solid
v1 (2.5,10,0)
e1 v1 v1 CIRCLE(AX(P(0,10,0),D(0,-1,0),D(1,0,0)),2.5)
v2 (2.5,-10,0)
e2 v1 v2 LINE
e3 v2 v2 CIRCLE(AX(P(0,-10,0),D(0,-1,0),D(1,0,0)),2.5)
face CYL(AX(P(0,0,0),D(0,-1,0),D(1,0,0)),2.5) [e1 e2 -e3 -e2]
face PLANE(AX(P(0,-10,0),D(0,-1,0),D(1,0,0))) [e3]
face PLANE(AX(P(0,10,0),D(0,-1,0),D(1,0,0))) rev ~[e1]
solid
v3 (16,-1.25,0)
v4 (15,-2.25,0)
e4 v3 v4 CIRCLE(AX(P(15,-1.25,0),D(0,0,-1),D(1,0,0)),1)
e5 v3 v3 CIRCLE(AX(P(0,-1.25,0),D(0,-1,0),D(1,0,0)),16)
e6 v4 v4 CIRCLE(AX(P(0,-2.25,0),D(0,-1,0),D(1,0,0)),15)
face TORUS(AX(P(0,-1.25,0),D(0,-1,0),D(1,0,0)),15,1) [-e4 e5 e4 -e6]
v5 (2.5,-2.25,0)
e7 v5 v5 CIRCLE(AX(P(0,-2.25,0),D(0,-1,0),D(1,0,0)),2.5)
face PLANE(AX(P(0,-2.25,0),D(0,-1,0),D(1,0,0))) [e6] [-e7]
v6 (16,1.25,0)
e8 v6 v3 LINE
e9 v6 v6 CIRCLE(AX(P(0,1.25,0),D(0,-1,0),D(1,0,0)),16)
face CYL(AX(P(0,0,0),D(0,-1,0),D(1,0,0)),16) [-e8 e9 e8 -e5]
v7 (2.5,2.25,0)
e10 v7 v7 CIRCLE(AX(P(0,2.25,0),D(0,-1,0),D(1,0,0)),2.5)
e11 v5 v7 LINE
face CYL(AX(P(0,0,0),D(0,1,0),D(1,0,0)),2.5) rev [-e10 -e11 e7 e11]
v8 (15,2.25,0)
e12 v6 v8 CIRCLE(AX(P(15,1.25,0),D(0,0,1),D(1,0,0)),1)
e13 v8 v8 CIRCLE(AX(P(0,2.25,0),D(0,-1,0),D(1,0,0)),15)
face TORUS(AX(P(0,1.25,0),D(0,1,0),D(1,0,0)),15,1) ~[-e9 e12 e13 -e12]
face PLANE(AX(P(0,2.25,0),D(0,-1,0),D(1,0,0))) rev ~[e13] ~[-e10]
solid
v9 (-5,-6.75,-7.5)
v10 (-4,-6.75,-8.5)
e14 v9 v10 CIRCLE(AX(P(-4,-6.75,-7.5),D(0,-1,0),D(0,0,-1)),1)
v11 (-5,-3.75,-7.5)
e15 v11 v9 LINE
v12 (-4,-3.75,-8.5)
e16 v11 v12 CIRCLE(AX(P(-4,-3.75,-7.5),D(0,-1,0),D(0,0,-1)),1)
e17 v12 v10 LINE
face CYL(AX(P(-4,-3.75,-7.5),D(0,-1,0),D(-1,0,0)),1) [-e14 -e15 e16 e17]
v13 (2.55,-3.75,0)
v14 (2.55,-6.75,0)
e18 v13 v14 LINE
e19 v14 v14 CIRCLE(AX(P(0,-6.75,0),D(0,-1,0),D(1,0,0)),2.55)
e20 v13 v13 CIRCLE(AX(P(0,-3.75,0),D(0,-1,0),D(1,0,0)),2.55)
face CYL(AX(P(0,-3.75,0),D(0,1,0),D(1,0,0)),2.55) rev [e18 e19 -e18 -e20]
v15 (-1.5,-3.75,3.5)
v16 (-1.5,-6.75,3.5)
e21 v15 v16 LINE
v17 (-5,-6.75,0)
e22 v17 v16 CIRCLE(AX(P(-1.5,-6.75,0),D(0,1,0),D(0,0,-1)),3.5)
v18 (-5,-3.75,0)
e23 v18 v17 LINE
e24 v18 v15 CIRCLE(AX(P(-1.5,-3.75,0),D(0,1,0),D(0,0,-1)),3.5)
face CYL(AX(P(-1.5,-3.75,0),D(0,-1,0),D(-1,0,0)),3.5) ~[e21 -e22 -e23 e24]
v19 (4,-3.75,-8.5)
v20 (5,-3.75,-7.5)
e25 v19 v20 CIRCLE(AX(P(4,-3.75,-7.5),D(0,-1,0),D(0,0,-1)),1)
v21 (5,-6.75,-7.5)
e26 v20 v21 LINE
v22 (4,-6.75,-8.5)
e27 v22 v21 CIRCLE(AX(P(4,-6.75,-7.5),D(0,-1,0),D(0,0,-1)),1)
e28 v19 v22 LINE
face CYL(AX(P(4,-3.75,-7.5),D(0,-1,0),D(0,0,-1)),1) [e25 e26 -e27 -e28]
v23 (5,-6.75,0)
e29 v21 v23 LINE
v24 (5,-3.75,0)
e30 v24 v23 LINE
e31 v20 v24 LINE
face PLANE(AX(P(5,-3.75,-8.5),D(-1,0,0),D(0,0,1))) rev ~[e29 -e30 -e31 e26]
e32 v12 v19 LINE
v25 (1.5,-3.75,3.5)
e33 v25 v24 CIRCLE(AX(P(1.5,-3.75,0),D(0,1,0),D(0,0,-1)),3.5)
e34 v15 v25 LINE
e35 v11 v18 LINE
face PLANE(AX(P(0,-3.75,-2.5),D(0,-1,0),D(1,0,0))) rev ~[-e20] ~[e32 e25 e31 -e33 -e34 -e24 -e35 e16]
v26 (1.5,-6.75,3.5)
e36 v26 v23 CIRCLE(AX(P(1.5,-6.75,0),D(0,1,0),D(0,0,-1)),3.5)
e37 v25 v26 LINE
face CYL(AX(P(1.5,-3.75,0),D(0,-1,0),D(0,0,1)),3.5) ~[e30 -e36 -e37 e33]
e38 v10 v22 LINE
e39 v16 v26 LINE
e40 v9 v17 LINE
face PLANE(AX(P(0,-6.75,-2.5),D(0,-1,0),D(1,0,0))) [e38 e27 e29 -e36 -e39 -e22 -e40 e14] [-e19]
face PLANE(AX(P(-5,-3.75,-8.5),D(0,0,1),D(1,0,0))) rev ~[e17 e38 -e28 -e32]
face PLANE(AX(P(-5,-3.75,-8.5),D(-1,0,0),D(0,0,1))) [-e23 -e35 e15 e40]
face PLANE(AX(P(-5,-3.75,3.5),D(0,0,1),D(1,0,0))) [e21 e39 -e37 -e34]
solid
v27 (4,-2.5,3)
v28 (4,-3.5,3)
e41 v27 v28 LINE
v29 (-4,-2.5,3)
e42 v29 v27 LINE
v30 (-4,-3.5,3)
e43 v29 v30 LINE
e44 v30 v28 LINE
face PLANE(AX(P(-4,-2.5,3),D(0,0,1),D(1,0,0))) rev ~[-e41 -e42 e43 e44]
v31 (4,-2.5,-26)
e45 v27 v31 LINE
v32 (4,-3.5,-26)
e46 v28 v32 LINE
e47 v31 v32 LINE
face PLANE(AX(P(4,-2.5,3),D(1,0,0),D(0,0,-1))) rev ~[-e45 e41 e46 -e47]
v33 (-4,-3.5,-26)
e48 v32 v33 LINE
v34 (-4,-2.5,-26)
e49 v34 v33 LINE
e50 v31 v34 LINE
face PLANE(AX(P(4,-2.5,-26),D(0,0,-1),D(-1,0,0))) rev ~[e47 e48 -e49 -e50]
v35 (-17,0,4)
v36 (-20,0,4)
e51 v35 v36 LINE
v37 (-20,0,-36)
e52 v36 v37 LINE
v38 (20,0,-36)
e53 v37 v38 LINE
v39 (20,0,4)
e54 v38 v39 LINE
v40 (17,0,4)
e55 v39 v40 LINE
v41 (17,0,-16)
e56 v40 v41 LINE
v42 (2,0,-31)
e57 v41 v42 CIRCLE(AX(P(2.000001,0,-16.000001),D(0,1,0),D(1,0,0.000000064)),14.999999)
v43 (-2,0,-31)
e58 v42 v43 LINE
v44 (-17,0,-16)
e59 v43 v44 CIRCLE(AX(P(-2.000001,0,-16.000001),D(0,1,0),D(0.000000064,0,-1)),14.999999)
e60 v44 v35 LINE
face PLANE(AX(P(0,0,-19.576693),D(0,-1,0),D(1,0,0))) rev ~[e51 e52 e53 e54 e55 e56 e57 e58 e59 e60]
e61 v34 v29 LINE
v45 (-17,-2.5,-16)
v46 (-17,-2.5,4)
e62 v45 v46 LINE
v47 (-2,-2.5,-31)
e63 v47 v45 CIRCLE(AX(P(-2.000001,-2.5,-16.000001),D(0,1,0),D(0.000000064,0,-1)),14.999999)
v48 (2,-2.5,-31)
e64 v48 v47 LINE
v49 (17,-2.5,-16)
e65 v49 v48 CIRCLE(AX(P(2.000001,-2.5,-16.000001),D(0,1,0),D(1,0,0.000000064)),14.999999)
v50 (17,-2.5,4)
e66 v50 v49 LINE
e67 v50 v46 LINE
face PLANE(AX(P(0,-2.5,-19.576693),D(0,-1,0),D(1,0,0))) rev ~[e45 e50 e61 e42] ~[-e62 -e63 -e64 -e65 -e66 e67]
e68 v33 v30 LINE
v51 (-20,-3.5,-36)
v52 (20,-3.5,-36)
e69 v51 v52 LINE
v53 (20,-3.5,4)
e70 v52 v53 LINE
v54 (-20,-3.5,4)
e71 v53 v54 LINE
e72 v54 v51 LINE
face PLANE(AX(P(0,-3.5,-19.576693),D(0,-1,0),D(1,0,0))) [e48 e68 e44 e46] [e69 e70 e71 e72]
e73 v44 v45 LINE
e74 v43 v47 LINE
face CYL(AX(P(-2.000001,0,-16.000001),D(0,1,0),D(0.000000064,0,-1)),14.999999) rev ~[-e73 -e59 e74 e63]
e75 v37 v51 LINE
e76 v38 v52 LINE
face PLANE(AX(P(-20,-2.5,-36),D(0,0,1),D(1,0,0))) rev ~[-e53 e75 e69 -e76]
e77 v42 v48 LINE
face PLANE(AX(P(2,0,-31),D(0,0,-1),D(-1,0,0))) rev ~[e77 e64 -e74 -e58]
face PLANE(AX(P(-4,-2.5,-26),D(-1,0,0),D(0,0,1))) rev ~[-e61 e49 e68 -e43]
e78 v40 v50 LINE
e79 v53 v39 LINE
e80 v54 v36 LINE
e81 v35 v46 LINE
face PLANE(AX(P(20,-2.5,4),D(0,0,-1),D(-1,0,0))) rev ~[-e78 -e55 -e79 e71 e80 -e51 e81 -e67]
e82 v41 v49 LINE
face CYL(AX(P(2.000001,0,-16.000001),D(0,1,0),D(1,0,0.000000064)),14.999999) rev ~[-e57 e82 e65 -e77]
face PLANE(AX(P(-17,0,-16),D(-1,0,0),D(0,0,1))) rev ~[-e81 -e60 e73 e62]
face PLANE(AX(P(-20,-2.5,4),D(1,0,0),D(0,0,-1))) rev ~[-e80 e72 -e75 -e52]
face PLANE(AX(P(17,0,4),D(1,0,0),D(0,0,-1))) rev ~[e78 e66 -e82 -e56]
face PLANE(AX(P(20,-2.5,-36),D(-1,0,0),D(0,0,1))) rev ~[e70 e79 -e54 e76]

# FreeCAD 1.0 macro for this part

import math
import FreeCAD as App
import Part
import Sketcher

V = App.Vector
Q = App.Units.Quantity


def edges_at(feature, points):
    """Names of the edges that pass closest to the given points."""
    edges = feature.Shape.Edges
    near = lambda p: min(range(len(edges)), key=lambda i: edges[i].distToShape(Part.Vertex(*p))[0])
    return sorted({f"Edge{near(p) + 1}" for p in points})

doc = App.newDocument("Part")
body = doc.addObject("PartDesign::Body", "Body")

sketch1 = body.newObject("Sketcher::SketchObject", "Sketch")
sketch1.AttachmentSupport = (doc.getObject("XZ_Plane"), [""])
sketch1.MapMode = "FlatFace"
sketch1.addGeometry(Part.Circle(V(0, 0, 0), V(0, 0, 1), 16), False)
sketch1.addGeometry(Part.Circle(V(0, 0, 0), V(0, 0, 1), 2.5), False)
sketch1.addConstraint(Sketcher.Constraint("Coincident", 0, 3, -1, 1))
sketch1.addConstraint(Sketcher.Constraint("Coincident", 1, 3, -1, 1))
sketch1.addConstraint(Sketcher.Constraint("Diameter", 0, Q("32 mm")))
sketch1.addConstraint(Sketcher.Constraint("Diameter", 1, Q("5 mm")))
pad1 = body.newObject("PartDesign::Pad", "Pad")
pad1.Profile = sketch1
pad1.Length = 4.5
pad1.Midplane = True
doc.recompute()

fillet = body.newObject("PartDesign::Fillet", "Fillet")
fillet.Base = (pad1, edges_at(pad1, [(-16, -2.25, 0), (-16, 2.25, 0)]))
fillet.Radius = 1
body2 = doc.addObject("PartDesign::Body", "Body001")

sketch2 = body2.newObject("Sketcher::SketchObject", "Sketch001")
sketch2.AttachmentSupport = (doc.getObject("XZ_Plane001"), [""])
sketch2.MapMode = "FlatFace"
sketch2.addGeometry(Part.Circle(V(0, 0, 0), V(0, 0, 1), 2.5), False)
sketch2.addConstraint(Sketcher.Constraint("Coincident", 0, 3, -1, 1))
sketch2.addConstraint(Sketcher.Constraint("Diameter", 0, Q("5 mm")))
pad2 = body2.newObject("PartDesign::Pad", "Pad001")
pad2.Profile = sketch2
pad2.Length = 20
pad2.Midplane = True
body3 = doc.addObject("PartDesign::Body", "Body002")

sketch3 = body3.newObject("Sketcher::SketchObject", "Sketch002")
sketch3.AttachmentSupport = (doc.getObject("XZ_Plane002"), [""])
sketch3.MapMode = "FlatFace"
sketch3.AttachmentOffset = App.Placement(V(0, 0, 3.75), App.Rotation())
sketch3.addGeometry(Part.LineSegment(V(-5, 3.5, 0), V(-5, -8.5, 0)), False)
sketch3.addGeometry(Part.LineSegment(V(-5, -8.5, 0), V(5, -8.5, 0)), False)
sketch3.addGeometry(Part.LineSegment(V(5, -8.5, 0), V(5, 3.5, 0)), False)
sketch3.addGeometry(Part.LineSegment(V(5, 3.5, 0), V(-5, 3.5, 0)), False)
sketch3.addGeometry(Part.Circle(V(0, 0, 0), V(0, 0, 1), 2.5), False)
sketch3.addConstraint(Sketcher.Constraint("Coincident", 0, 2, 1, 1))
sketch3.addConstraint(Sketcher.Constraint("Coincident", 1, 2, 2, 1))
sketch3.addConstraint(Sketcher.Constraint("Coincident", 2, 2, 3, 1))
sketch3.addConstraint(Sketcher.Constraint("Coincident", 3, 2, 0, 1))
sketch3.addConstraint(Sketcher.Constraint("Vertical", 0))
sketch3.addConstraint(Sketcher.Constraint("Horizontal", 1))
sketch3.addConstraint(Sketcher.Constraint("Vertical", 2))
sketch3.addConstraint(Sketcher.Constraint("Horizontal", 3))
sketch3.addConstraint(Sketcher.Constraint("Coincident", 4, 3, -1, 1))
sketch3.addConstraint(Sketcher.Constraint("Diameter", 4, Q("5.1 mm")))
sketch3.addConstraint(Sketcher.Constraint("DistanceX", 1, 1, 1, 2, Q("10 mm")))
sketch3.addConstraint(Sketcher.Constraint("DistanceY", 0, 2, 0, 1, Q("12 mm")))
sketch3.addConstraint(Sketcher.Constraint("DistanceX", 0, 2, -1, 1, Q("5 mm")))
sketch3.addConstraint(Sketcher.Constraint("DistanceY", 0, 2, -1, 1, Q("8.5 mm")))
pad3 = body3.newObject("PartDesign::Pad", "Pad002")
pad3.Profile = sketch3
pad3.Length = 3
doc.recompute()

fillet2 = body3.newObject("PartDesign::Fillet", "Fillet001")
fillet2.Base = (pad3, edges_at(pad3, [(-5, -5.25, 3.5), (5, -5.25, 3.5)]))
fillet2.Radius = 3.5
doc.recompute()

fillet3 = body3.newObject("PartDesign::Fillet", "Fillet002")
fillet3.Base = (fillet2, edges_at(fillet2, [(5, -5.25, -8.5), (-5, -5.25, -8.5)]))
fillet3.Radius = 1
body4 = doc.addObject("PartDesign::Body", "Body003")

sketch4 = body4.newObject("Sketcher::SketchObject", "Sketch003")
sketch4.AttachmentSupport = (doc.getObject("XZ_Plane003"), [""])
sketch4.MapMode = "FlatFace"
sketch4.addGeometry(Part.LineSegment(V(20, -36, 0), V(20, 4, 0)), False)
sketch4.addGeometry(Part.LineSegment(V(20, 4, 0), V(17, 4, 0)), False)
sketch4.addGeometry(Part.LineSegment(V(17, 4, 0), V(17, -16, 0)), False)
sketch4.addGeometry(Part.ArcOfCircle(Part.Circle(V(2, -16, 0), V(0, 0, 1), 15), math.radians(-90), math.radians(0)), False)
sketch4.addGeometry(Part.LineSegment(V(2, -31, 0), V(-2, -31, 0)), False)
sketch4.addGeometry(Part.ArcOfCircle(Part.Circle(V(-2, -16, 0), V(0, 0, 1), 15), math.radians(180), math.radians(270)), False)
sketch4.addGeometry(Part.LineSegment(V(-17, -16, 0), V(-17, 4, 0)), False)
sketch4.addGeometry(Part.LineSegment(V(-17, 4, 0), V(-20, 4, 0)), False)
sketch4.addGeometry(Part.LineSegment(V(-20, 4, 0), V(-20, -36, 0)), False)
sketch4.addGeometry(Part.LineSegment(V(-20, -36, 0), V(20, -36, 0)), False)
sketch4.addConstraint(Sketcher.Constraint("Coincident", 0, 2, 1, 1))
sketch4.addConstraint(Sketcher.Constraint("Coincident", 1, 2, 2, 1))
sketch4.addConstraint(Sketcher.Constraint("Tangent", 2, 2, 3, 2))
sketch4.addConstraint(Sketcher.Constraint("Tangent", 3, 1, 4, 1))
sketch4.addConstraint(Sketcher.Constraint("Tangent", 4, 2, 5, 2))
sketch4.addConstraint(Sketcher.Constraint("Tangent", 5, 1, 6, 1))
sketch4.addConstraint(Sketcher.Constraint("Coincident", 6, 2, 7, 1))
sketch4.addConstraint(Sketcher.Constraint("Coincident", 7, 2, 8, 1))
sketch4.addConstraint(Sketcher.Constraint("Coincident", 8, 2, 9, 1))
sketch4.addConstraint(Sketcher.Constraint("Coincident", 9, 2, 0, 1))
sketch4.addConstraint(Sketcher.Constraint("Vertical", 0))
sketch4.addConstraint(Sketcher.Constraint("Horizontal", 1))
sketch4.addConstraint(Sketcher.Constraint("Vertical", 2))
sketch4.addConstraint(Sketcher.Constraint("Horizontal", 4))
sketch4.addConstraint(Sketcher.Constraint("Vertical", 6))
sketch4.addConstraint(Sketcher.Constraint("Horizontal", 7))
sketch4.addConstraint(Sketcher.Constraint("Vertical", 8))
sketch4.addConstraint(Sketcher.Constraint("Horizontal", 9))
sketch4.addConstraint(Sketcher.Constraint("Equal", 3, 5))
sketch4.addConstraint(Sketcher.Constraint("Symmetric", 1, 2, 6, 2, -2))
sketch4.addConstraint(Sketcher.Constraint("Equal", 1, 7))
sketch4.addConstraint(Sketcher.Constraint("Equal", 9, 0))
sketch4.addConstraint(Sketcher.Constraint("Radius", 3, Q("14.999999 mm")))
sketch4.addConstraint(Sketcher.Constraint("DistanceX", 1, 2, 1, 1, Q("3 mm")))
sketch4.addConstraint(Sketcher.Constraint("DistanceX", 4, 2, 4, 1, Q("4 mm")))
sketch4.addConstraint(Sketcher.Constraint("DistanceY", 2, 2, 2, 1, Q("20 mm")))
sketch4.addConstraint(Sketcher.Constraint("DistanceY", 3, 3, -1, 1, Q("16.000001 mm")))
pad4 = body4.newObject("PartDesign::Pad", "Pad003")
pad4.Profile = sketch4
pad4.Length = 2.5

sketch5 = body4.newObject("Sketcher::SketchObject", "Sketch004")
sketch5.AttachmentSupport = (doc.getObject("XZ_Plane003"), [""])
sketch5.MapMode = "FlatFace"
sketch5.AttachmentOffset = App.Placement(V(0, 0, 2.5), App.Rotation())
sketch5.addGeometry(Part.LineSegment(V(-20, 4, 0), V(-20, -36, 0)), False)
sketch5.addGeometry(Part.LineSegment(V(-20, -36, 0), V(20, -36, 0)), False)
sketch5.addGeometry(Part.LineSegment(V(20, -36, 0), V(20, 4, 0)), False)
sketch5.addGeometry(Part.LineSegment(V(20, 4, 0), V(-20, 4, 0)), False)
sketch5.addGeometry(Part.LineSegment(V(4, 3, 0), V(4, -26, 0)), False)
sketch5.addGeometry(Part.LineSegment(V(4, -26, 0), V(-4, -26, 0)), False)
sketch5.addGeometry(Part.LineSegment(V(-4, -26, 0), V(-4, 3, 0)), False)
sketch5.addGeometry(Part.LineSegment(V(-4, 3, 0), V(4, 3, 0)), False)
sketch5.addConstraint(Sketcher.Constraint("Coincident", 0, 2, 1, 1))
sketch5.addConstraint(Sketcher.Constraint("Coincident", 1, 2, 2, 1))
sketch5.addConstraint(Sketcher.Constraint("Coincident", 2, 2, 3, 1))
sketch5.addConstraint(Sketcher.Constraint("Coincident", 3, 2, 0, 1))
sketch5.addConstraint(Sketcher.Constraint("Coincident", 4, 2, 5, 1))
sketch5.addConstraint(Sketcher.Constraint("Coincident", 5, 2, 6, 1))
sketch5.addConstraint(Sketcher.Constraint("Coincident", 6, 2, 7, 1))
sketch5.addConstraint(Sketcher.Constraint("Coincident", 7, 2, 4, 1))
sketch5.addConstraint(Sketcher.Constraint("Vertical", 0))
sketch5.addConstraint(Sketcher.Constraint("Horizontal", 1))
sketch5.addConstraint(Sketcher.Constraint("Vertical", 2))
sketch5.addConstraint(Sketcher.Constraint("Horizontal", 3))
sketch5.addConstraint(Sketcher.Constraint("Vertical", 4))
sketch5.addConstraint(Sketcher.Constraint("Horizontal", 5))
sketch5.addConstraint(Sketcher.Constraint("Vertical", 6))
sketch5.addConstraint(Sketcher.Constraint("Horizontal", 7))
sketch5.addConstraint(Sketcher.Constraint("Equal", 3, 0))
sketch5.addConstraint(Sketcher.Constraint("DistanceX", 1, 1, 1, 2, Q("40 mm")))
sketch5.addConstraint(Sketcher.Constraint("DistanceX", 5, 2, 5, 1, Q("8 mm")))
sketch5.addConstraint(Sketcher.Constraint("DistanceY", 4, 2, 4, 1, Q("29 mm")))
sketch5.addConstraint(Sketcher.Constraint("DistanceX", 0, 2, -1, 1, Q("20 mm")))
sketch5.addConstraint(Sketcher.Constraint("DistanceY", 0, 2, -1, 1, Q("36 mm")))
sketch5.addConstraint(Sketcher.Constraint("DistanceX", -1, 1, 4, 2, Q("4 mm")))
sketch5.addConstraint(Sketcher.Constraint("DistanceY", 4, 2, -1, 1, Q("26 mm")))
pad5 = body4.newObject("PartDesign::Pad", "Pad004")
pad5.Profile = sketch5
pad5.Length = 1

doc.recompute()
